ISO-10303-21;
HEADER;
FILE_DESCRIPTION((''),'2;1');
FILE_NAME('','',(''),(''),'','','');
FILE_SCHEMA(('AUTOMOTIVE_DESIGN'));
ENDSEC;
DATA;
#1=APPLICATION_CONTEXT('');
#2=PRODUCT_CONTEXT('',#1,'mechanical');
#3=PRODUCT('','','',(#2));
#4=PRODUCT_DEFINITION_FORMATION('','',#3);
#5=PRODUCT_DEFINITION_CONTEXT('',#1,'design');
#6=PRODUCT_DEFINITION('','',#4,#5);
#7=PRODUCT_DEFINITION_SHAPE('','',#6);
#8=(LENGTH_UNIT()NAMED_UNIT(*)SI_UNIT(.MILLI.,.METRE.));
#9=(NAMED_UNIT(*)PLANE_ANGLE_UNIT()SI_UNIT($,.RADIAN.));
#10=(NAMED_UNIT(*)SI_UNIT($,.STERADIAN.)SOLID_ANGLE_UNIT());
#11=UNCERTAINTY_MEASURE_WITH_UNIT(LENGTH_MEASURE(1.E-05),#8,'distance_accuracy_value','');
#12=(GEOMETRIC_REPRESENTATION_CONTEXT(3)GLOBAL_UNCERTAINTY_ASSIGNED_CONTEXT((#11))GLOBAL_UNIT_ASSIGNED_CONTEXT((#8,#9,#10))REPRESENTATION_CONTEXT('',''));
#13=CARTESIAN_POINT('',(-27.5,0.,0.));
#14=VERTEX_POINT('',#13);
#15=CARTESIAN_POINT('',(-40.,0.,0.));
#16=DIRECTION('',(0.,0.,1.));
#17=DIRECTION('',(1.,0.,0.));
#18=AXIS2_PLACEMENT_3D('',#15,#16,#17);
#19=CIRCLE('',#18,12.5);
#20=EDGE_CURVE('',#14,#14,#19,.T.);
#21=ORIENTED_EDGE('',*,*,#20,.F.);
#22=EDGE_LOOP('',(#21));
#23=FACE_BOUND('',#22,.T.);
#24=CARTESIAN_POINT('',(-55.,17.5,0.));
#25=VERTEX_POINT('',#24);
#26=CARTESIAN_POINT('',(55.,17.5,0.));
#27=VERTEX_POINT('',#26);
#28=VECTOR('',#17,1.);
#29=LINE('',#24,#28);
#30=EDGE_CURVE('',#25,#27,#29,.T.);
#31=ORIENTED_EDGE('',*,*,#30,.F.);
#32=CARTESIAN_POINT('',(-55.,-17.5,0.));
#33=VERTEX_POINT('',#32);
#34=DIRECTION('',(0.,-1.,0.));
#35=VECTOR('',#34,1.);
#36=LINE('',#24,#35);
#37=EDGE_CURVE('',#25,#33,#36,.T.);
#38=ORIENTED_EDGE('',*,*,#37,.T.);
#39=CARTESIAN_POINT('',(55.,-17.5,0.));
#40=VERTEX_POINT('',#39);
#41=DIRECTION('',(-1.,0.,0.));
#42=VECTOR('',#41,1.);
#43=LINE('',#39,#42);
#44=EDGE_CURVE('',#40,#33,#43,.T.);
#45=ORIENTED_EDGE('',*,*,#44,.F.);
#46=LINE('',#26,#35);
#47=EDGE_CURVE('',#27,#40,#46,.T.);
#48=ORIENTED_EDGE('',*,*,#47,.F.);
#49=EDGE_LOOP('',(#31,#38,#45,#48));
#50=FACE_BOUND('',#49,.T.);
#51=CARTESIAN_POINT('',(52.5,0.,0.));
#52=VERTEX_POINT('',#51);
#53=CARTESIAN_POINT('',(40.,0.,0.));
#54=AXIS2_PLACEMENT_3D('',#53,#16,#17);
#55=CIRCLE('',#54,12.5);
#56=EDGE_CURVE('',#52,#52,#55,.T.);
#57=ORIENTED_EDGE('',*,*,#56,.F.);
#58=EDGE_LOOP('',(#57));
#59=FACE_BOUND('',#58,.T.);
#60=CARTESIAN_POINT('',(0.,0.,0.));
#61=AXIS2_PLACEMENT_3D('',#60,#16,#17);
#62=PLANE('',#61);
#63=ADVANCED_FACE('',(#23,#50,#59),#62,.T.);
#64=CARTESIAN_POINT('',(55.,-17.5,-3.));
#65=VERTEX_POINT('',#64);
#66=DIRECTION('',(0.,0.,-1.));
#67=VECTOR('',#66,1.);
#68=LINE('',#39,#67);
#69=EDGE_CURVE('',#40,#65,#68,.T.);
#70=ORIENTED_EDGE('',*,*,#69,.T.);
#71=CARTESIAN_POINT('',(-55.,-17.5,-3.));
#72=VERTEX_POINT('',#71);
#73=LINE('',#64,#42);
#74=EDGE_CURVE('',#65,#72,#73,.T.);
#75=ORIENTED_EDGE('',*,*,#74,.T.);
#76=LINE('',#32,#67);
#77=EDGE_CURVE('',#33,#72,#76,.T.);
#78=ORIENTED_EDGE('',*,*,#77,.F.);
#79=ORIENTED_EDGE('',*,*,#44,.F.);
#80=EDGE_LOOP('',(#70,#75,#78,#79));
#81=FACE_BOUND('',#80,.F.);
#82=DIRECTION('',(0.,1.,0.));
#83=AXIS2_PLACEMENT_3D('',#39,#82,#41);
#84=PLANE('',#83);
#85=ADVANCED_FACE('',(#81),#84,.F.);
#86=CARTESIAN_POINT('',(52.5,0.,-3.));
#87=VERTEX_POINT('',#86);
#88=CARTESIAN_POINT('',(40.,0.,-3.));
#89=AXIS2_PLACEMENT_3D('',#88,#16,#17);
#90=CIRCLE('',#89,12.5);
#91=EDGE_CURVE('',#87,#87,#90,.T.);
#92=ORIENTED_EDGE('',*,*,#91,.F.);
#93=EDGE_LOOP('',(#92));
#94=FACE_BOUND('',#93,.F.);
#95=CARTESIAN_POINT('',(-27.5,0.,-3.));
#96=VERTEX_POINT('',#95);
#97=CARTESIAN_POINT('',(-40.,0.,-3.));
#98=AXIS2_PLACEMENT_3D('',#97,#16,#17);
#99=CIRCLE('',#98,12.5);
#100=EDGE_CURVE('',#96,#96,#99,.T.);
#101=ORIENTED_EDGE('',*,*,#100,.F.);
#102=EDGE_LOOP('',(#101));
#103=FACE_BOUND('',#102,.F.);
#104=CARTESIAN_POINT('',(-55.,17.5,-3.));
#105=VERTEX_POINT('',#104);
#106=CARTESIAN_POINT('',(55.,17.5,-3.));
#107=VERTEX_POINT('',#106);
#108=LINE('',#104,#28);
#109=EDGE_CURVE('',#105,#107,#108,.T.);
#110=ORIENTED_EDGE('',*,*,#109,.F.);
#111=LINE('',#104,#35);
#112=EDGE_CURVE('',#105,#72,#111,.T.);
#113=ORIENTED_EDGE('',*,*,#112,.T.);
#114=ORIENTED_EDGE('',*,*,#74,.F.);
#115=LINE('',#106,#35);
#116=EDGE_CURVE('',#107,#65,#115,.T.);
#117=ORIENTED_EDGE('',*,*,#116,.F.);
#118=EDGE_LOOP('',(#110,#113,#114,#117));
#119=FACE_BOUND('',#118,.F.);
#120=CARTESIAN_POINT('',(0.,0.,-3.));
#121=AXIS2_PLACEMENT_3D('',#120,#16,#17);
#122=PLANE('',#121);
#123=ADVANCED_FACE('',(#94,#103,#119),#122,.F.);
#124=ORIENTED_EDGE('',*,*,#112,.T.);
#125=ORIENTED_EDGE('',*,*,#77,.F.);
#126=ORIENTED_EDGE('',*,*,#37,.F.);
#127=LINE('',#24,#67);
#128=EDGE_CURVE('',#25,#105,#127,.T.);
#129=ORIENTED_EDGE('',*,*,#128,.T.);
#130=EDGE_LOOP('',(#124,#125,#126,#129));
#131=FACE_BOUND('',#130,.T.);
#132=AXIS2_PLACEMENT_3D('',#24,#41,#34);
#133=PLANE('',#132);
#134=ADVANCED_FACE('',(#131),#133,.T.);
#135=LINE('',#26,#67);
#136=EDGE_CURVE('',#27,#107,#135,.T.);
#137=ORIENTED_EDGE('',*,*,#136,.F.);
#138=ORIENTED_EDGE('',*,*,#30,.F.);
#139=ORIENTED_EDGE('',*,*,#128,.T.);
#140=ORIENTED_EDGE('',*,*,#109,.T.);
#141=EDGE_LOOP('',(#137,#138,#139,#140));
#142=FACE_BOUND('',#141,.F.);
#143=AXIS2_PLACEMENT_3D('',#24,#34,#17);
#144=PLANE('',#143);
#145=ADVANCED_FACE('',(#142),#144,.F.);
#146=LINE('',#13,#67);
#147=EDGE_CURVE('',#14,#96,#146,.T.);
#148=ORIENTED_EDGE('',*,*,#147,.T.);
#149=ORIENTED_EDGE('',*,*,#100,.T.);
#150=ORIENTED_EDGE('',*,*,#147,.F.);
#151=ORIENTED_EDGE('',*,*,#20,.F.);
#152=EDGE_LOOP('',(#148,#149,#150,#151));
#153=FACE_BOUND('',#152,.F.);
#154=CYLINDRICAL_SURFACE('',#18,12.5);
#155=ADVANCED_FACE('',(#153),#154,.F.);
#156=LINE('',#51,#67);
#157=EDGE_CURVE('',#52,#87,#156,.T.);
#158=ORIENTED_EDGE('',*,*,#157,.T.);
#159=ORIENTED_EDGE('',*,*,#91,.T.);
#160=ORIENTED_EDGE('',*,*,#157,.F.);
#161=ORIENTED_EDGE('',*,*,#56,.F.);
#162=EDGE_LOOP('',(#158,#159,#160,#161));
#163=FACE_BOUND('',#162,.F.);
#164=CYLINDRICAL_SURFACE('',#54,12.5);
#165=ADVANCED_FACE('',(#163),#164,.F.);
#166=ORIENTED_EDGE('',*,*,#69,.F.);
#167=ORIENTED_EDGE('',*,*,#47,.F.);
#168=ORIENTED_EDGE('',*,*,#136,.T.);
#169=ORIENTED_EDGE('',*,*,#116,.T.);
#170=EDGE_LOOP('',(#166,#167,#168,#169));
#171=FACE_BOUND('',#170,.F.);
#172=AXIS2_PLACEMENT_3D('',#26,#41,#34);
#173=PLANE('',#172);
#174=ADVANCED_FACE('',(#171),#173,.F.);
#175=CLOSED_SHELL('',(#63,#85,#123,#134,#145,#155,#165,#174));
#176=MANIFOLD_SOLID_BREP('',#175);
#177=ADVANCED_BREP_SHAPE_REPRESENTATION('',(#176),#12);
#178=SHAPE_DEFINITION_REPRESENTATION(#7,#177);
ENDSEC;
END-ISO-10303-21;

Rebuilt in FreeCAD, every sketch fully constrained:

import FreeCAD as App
import Part
import Sketcher
from FreeCAD import Vector

doc = App.newDocument("Part")
params = doc.addObject("Spreadsheet::Sheet", "Params")
for row, (alias, value) in enumerate([
    ("sketch1_width", "110 mm"),
    ("sketch1_height", "35 mm"),
    ("pad1_length", "3 mm"),
    ("sketch2_diameter", "25 mm"),
], start=1):
    params.set(f"A{row}", alias)
    params.set(f"B{row}", "=" + value)
    params.setAlias(f"B{row}", alias)

body = doc.addObject("PartDesign::Body", "Body")

# Sketch on XY plane
sketch1 = doc.addObject("Sketcher::SketchObject", "Sketch")
body.addObject(sketch1)
sketch1.AttachmentSupport = (doc.XY_Plane, [""])
sketch1.MapMode = "FlatFace"
sketch1.addGeometry(Part.LineSegment(Vector(55, 18, 0), Vector(-55, 18, 0)), False)
sketch1.addGeometry(Part.LineSegment(Vector(-55, 18, 0), Vector(-55, -18, 0)), False)
sketch1.addGeometry(Part.LineSegment(Vector(-55, -18, 0), Vector(55, -18, 0)), False)
sketch1.addGeometry(Part.LineSegment(Vector(55, -18, 0), Vector(55, 18, 0)), False)
sketch1.addConstraint(Sketcher.Constraint("Coincident", 0, 2, 1, 1))
sketch1.addConstraint(Sketcher.Constraint("Coincident", 1, 2, 2, 1))
sketch1.addConstraint(Sketcher.Constraint("Coincident", 2, 2, 3, 1))
sketch1.addConstraint(Sketcher.Constraint("Coincident", 3, 2, 0, 1))
sketch1.addConstraint(Sketcher.Constraint("Horizontal", 0))
sketch1.addConstraint(Sketcher.Constraint("Vertical", 1))
sketch1.addConstraint(Sketcher.Constraint("Horizontal", 2))
sketch1.addConstraint(Sketcher.Constraint("Vertical", 3))
sketch1.addConstraint(Sketcher.Constraint("Symmetric", 0, 2, 2, 2, -1, 1))
sketch1.addConstraint(Sketcher.Constraint("DistanceX", 0, 2, 0, 1, 110.0))
sketch1.addConstraint(Sketcher.Constraint("DistanceY", 1, 2, 1, 1, 35.0))
sketch1.setExpression("Constraints[9]", "Params.sketch1_width")
sketch1.setExpression("Constraints[10]", "Params.sketch1_height")
pad1 = doc.addObject("PartDesign::Pad", "Pad")
body.addObject(pad1)
pad1.Profile = sketch1
pad1.setExpression("Length", "Params.pad1_length")
pad1.Reversed = True

# Sketch on XY plane
sketch2 = doc.addObject("Sketcher::SketchObject", "Sketch001")
body.addObject(sketch2)
sketch2.AttachmentSupport = (doc.XY_Plane, [""])
sketch2.MapMode = "FlatFace"
sketch2.addGeometry(Part.Circle(Vector(40, 0, 0), Vector(0, 0, 1), 12), False)
sketch2.addGeometry(Part.Circle(Vector(-40, 0, 0), Vector(0, 0, 1), 12), False)
sketch2.addConstraint(Sketcher.Constraint("Equal", 0, 1))
sketch2.addConstraint(Sketcher.Constraint("Symmetric", 0, 3, 1, 3, -1, 1))
sketch2.addConstraint(Sketcher.Constraint("PointOnObject", 0, 3, -1))
sketch2.addConstraint(Sketcher.Constraint("Diameter", 0, 25.0))
sketch2.addConstraint(Sketcher.Constraint("DistanceX", -1, 1, 0, 3, 40.0))
sketch2.setExpression("Constraints[3]", "Params.sketch2_diameter")
pocket1 = doc.addObject("PartDesign::Pocket", "Pocket")
body.addObject(pocket1)
pocket1.Profile = sketch2
pocket1.Type = "ThroughAll"

doc.recompute()
